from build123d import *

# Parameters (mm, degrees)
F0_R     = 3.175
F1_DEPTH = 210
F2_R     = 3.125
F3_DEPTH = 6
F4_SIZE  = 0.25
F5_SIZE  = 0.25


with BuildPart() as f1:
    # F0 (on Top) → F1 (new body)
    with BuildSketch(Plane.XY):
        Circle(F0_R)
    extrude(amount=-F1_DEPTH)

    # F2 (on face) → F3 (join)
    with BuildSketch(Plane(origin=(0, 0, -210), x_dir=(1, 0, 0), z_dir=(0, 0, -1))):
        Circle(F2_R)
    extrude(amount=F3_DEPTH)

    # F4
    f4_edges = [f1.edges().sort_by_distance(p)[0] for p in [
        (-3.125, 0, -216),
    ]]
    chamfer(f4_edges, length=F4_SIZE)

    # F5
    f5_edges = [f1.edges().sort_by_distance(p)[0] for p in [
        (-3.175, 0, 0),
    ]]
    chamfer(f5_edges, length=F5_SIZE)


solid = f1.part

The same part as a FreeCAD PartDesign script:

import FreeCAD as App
import Part
import Sketcher
Q = App.Units.Quantity


def edges_at(feature, points):
    """Names of the edges that pass closest to the given points."""
    edges = feature.Shape.Edges
    near = lambda p: min(range(len(edges)), key=lambda i: edges[i].distToShape(Part.Vertex(*p))[0])
    return sorted({f"Edge{near(p) + 1}" for p in points})

doc = App.newDocument("Part")
params = doc.addObject("Spreadsheet::Sheet", "Params")
for row, (alias, value) in enumerate([
    ("sketch1_diameter", "6.35 mm"),
    ("pad1_length", "210 mm"),
    ("sketch2_diameter", "6.25 mm"),
    ("pad2_length", "6 mm"),
    ("chamfer_size", "0.25 mm"),
    ("chamfer2_size", "0.25 mm"),
], start=1):
    params.set(f"A{row}", alias)
    params.set(f"B{row}", "=" + value)
    params.setAlias(f"B{row}", alias)

body = doc.addObject("PartDesign::Body", "Body")

sketch1 = body.newObject("Sketcher::SketchObject", "Sketch")
sketch1.AttachmentSupport = (doc.getObject("XY_Plane"), [""])
sketch1.MapMode = "FlatFace"
sketch1.addGeometry(Part.Circle(App.Vector(0, 0, 0), App.Vector(0, 0, 1), 3.2), False)
sketch1.addConstraint(Sketcher.Constraint("Coincident", 0, 3, -1, 1))
sketch1.addConstraint(Sketcher.Constraint("Diameter", 0, Q("6.35 mm")))
sketch1.setExpression("Constraints[1]", "Params.sketch1_diameter")
pad1 = body.newObject("PartDesign::Pad", "Pad")
pad1.Profile = sketch1
pad1.setExpression("Length", "Params.pad1_length")
pad1.Reversed = True

sketch2 = body.newObject("Sketcher::SketchObject", "Sketch001")
sketch2.AttachmentSupport = (doc.getObject("XY_Plane"), [""])
sketch2.MapMode = "FlatFace"
sketch2.AttachmentOffset = App.Placement(App.Vector(0, 0, -210), App.Rotation())
sketch2.addGeometry(Part.Circle(App.Vector(0, 0, 0), App.Vector(0, 0, 1), 3.1), False)
sketch2.addConstraint(Sketcher.Constraint("Coincident", 0, 3, -1, 1))
sketch2.addConstraint(Sketcher.Constraint("Diameter", 0, Q("6.25 mm")))
sketch2.setExpression("Constraints[1]", "Params.sketch2_diameter")
pad2 = body.newObject("PartDesign::Pad", "Pad001")
pad2.Profile = sketch2
pad2.setExpression("Length", "Params.pad2_length")
pad2.Reversed = True
doc.recompute()

chamfer = body.newObject("PartDesign::Chamfer", "Chamfer")
chamfer.Base = (pad2, edges_at(pad2, [(-3.125, 0, -216)]))
chamfer.setExpression("Size", "Params.chamfer_size")
doc.recompute()

chamfer2 = body.newObject("PartDesign::Chamfer", "Chamfer001")
chamfer2.Base = (chamfer, edges_at(chamfer, [(-3.175, 0, 0)]))
chamfer2.setExpression("Size", "Params.chamfer2_size")

doc.recompute()
